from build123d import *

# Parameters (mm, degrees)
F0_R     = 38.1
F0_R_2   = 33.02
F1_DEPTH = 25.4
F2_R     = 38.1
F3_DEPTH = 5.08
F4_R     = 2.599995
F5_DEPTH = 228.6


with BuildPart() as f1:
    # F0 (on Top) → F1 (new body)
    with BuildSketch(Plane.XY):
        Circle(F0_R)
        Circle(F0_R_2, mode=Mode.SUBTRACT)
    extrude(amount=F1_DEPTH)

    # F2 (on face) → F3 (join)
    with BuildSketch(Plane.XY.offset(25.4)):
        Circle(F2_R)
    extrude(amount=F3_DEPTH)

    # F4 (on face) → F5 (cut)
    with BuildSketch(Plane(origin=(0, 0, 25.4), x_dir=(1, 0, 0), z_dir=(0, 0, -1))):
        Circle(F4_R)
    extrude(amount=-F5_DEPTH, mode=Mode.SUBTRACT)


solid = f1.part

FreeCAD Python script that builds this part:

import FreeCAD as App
import Part
import Sketcher

V = App.Vector
Q = App.Units.Quantity

doc = App.newDocument("Part")
body = doc.addObject("PartDesign::Body", "Body")

# Sketch on XY plane
sketch1 = body.newObject("Sketcher::SketchObject", "Sketch")
sketch1.AttachmentSupport = (doc.getObject("XY_Plane"), [""])
sketch1.MapMode = "FlatFace"
sketch1.addGeometry(Part.Circle(V(0, 0, 0), V(0, 0, 1), 38), False)
sketch1.addGeometry(Part.Circle(V(0, 0, 0), V(0, 0, 1), 33), False)
sketch1.addConstraint(Sketcher.Constraint("Coincident", 0, 3, -1, 1))
sketch1.addConstraint(Sketcher.Constraint("Coincident", 1, 3, -1, 1))
sketch1.addConstraint(Sketcher.Constraint("Diameter", 0, Q("3 in")))
sketch1.addConstraint(Sketcher.Constraint("Diameter", 1, Q("2.6 in")))
pad1 = body.newObject("PartDesign::Pad", "Pad")
pad1.Profile = sketch1
pad1.Length = Q("1 in")

# Sketch on XY plane
sketch2 = body.newObject("Sketcher::SketchObject", "Sketch001")
sketch2.AttachmentSupport = (doc.getObject("XY_Plane"), [""])
sketch2.MapMode = "FlatFace"
sketch2.AttachmentOffset = App.Placement(V(0, 0, 1 * 25.4), App.Rotation())
sketch2.addGeometry(Part.Circle(V(0, 0, 0), V(0, 0, 1), 38), False)
sketch2.addConstraint(Sketcher.Constraint("Coincident", 0, 3, -1, 1))
sketch2.addConstraint(Sketcher.Constraint("Diameter", 0, Q("3 in")))
pad2 = body.newObject("PartDesign::Pad", "Pad001")
pad2.Profile = sketch2
pad2.Length = Q("0.2 in")

# Sketch on XY plane
sketch3 = body.newObject("Sketcher::SketchObject", "Sketch002")
sketch3.AttachmentSupport = (doc.getObject("XY_Plane"), [""])
sketch3.MapMode = "FlatFace"
sketch3.AttachmentOffset = App.Placement(V(0, 0, 1 * 25.4), App.Rotation())
sketch3.addGeometry(Part.Circle(V(0, 0, 0), V(0, 0, 1), 2.6), False)
sketch3.addConstraint(Sketcher.Constraint("Coincident", 0, 3, -1, 1))
sketch3.addConstraint(Sketcher.Constraint("Diameter", 0, Q("5.19999 mm")))
pocket1 = body.newObject("PartDesign::Pocket", "Pocket")
pocket1.Profile = sketch3
pocket1.Length = Q("9 in")
pocket1.Reversed = True

doc.recompute()
